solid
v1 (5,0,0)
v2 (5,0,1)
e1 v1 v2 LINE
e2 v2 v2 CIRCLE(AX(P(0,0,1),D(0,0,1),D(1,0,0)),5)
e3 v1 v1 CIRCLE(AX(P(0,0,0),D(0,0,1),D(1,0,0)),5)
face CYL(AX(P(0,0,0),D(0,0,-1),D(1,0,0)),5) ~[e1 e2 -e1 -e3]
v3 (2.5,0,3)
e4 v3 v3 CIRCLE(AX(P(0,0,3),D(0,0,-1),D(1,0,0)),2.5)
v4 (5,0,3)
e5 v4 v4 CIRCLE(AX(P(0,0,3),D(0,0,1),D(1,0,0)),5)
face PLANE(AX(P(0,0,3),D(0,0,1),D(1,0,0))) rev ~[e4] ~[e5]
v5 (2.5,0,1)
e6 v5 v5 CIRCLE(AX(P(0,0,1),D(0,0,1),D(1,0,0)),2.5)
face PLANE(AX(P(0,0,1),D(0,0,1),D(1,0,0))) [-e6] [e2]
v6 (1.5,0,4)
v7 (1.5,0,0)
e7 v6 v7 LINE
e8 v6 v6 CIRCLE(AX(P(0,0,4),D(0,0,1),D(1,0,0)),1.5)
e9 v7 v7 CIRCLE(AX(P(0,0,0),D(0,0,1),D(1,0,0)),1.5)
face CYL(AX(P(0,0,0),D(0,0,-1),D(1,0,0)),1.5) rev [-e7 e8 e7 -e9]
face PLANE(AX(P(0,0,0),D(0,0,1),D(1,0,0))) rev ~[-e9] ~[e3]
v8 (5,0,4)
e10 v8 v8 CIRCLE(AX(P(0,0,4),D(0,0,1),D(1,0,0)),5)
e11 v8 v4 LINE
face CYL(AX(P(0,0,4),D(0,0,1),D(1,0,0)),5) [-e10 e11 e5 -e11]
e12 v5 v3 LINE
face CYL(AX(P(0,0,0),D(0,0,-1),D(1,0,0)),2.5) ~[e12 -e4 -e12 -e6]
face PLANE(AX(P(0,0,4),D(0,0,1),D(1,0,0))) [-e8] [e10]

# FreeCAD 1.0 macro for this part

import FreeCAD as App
import Part
import Sketcher

V = App.Vector
Q = App.Units.Quantity

doc = App.newDocument("Part")
body = doc.addObject("PartDesign::Body", "Body")

sketch1 = body.newObject("Sketcher::SketchObject", "Sketch")
sketch1.AttachmentSupport = (doc.getObject("XY_Plane"), [""])
sketch1.MapMode = "FlatFace"
sketch1.addGeometry(Part.Circle(V(0, 0, 0), V(0, 0, 1), 2.5), False)
sketch1.addGeometry(Part.Circle(V(0, 0, 0), V(0, 0, 1), 1.5), False)
sketch1.addConstraint(Sketcher.Constraint("Coincident", 0, 3, -1, 1))
sketch1.addConstraint(Sketcher.Constraint("Coincident", 1, 3, -1, 1))
sketch1.addConstraint(Sketcher.Constraint("Diameter", 0, Q("5 mm")))
sketch1.addConstraint(Sketcher.Constraint("Diameter", 1, Q("3 mm")))
pad1 = body.newObject("PartDesign::Pad", "Pad")
pad1.Profile = sketch1
pad1.Length = 4

sketch2 = body.newObject("Sketcher::SketchObject", "Sketch001")
sketch2.AttachmentSupport = (doc.getObject("XY_Plane"), [""])
sketch2.MapMode = "FlatFace"
sketch2.addGeometry(Part.Circle(V(0, 0, 0), V(0, 0, 1), 5), False)
sketch2.addGeometry(Part.Circle(V(0, 0, 0), V(0, 0, 1), 2.5), False)
sketch2.addConstraint(Sketcher.Constraint("Coincident", 0, 3, -1, 1))
sketch2.addConstraint(Sketcher.Constraint("Coincident", 1, 3, -1, 1))
sketch2.addConstraint(Sketcher.Constraint("Diameter", 0, Q("10 mm")))
sketch2.addConstraint(Sketcher.Constraint("Diameter", 1, Q("5 mm")))
pad2 = body.newObject("PartDesign::Pad", "Pad001")
pad2.Profile = sketch2
pad2.Length = 1

sketch3 = body.newObject("Sketcher::SketchObject", "Sketch002")
sketch3.AttachmentSupport = (doc.getObject("XY_Plane"), [""])
sketch3.MapMode = "FlatFace"
sketch3.AttachmentOffset = App.Placement(V(0, 0, 4), App.Rotation())
sketch3.addGeometry(Part.Circle(V(0, 0, 0), V(0, 0, 1), 5), False)
sketch3.addGeometry(Part.Circle(V(0, 0, 0), V(0, 0, 1), 1.5), False)
sketch3.addConstraint(Sketcher.Constraint("Coincident", 0, 3, -1, 1))
sketch3.addConstraint(Sketcher.Constraint("Coincident", 1, 3, -1, 1))
sketch3.addConstraint(Sketcher.Constraint("Diameter", 0, Q("10 mm")))
sketch3.addConstraint(Sketcher.Constraint("Diameter", 1, Q("3 mm")))
pad3 = body.newObject("PartDesign::Pad", "Pad002")
pad3.Profile = sketch3
pad3.Length = 1
pad3.Reversed = True

doc.recompute()
